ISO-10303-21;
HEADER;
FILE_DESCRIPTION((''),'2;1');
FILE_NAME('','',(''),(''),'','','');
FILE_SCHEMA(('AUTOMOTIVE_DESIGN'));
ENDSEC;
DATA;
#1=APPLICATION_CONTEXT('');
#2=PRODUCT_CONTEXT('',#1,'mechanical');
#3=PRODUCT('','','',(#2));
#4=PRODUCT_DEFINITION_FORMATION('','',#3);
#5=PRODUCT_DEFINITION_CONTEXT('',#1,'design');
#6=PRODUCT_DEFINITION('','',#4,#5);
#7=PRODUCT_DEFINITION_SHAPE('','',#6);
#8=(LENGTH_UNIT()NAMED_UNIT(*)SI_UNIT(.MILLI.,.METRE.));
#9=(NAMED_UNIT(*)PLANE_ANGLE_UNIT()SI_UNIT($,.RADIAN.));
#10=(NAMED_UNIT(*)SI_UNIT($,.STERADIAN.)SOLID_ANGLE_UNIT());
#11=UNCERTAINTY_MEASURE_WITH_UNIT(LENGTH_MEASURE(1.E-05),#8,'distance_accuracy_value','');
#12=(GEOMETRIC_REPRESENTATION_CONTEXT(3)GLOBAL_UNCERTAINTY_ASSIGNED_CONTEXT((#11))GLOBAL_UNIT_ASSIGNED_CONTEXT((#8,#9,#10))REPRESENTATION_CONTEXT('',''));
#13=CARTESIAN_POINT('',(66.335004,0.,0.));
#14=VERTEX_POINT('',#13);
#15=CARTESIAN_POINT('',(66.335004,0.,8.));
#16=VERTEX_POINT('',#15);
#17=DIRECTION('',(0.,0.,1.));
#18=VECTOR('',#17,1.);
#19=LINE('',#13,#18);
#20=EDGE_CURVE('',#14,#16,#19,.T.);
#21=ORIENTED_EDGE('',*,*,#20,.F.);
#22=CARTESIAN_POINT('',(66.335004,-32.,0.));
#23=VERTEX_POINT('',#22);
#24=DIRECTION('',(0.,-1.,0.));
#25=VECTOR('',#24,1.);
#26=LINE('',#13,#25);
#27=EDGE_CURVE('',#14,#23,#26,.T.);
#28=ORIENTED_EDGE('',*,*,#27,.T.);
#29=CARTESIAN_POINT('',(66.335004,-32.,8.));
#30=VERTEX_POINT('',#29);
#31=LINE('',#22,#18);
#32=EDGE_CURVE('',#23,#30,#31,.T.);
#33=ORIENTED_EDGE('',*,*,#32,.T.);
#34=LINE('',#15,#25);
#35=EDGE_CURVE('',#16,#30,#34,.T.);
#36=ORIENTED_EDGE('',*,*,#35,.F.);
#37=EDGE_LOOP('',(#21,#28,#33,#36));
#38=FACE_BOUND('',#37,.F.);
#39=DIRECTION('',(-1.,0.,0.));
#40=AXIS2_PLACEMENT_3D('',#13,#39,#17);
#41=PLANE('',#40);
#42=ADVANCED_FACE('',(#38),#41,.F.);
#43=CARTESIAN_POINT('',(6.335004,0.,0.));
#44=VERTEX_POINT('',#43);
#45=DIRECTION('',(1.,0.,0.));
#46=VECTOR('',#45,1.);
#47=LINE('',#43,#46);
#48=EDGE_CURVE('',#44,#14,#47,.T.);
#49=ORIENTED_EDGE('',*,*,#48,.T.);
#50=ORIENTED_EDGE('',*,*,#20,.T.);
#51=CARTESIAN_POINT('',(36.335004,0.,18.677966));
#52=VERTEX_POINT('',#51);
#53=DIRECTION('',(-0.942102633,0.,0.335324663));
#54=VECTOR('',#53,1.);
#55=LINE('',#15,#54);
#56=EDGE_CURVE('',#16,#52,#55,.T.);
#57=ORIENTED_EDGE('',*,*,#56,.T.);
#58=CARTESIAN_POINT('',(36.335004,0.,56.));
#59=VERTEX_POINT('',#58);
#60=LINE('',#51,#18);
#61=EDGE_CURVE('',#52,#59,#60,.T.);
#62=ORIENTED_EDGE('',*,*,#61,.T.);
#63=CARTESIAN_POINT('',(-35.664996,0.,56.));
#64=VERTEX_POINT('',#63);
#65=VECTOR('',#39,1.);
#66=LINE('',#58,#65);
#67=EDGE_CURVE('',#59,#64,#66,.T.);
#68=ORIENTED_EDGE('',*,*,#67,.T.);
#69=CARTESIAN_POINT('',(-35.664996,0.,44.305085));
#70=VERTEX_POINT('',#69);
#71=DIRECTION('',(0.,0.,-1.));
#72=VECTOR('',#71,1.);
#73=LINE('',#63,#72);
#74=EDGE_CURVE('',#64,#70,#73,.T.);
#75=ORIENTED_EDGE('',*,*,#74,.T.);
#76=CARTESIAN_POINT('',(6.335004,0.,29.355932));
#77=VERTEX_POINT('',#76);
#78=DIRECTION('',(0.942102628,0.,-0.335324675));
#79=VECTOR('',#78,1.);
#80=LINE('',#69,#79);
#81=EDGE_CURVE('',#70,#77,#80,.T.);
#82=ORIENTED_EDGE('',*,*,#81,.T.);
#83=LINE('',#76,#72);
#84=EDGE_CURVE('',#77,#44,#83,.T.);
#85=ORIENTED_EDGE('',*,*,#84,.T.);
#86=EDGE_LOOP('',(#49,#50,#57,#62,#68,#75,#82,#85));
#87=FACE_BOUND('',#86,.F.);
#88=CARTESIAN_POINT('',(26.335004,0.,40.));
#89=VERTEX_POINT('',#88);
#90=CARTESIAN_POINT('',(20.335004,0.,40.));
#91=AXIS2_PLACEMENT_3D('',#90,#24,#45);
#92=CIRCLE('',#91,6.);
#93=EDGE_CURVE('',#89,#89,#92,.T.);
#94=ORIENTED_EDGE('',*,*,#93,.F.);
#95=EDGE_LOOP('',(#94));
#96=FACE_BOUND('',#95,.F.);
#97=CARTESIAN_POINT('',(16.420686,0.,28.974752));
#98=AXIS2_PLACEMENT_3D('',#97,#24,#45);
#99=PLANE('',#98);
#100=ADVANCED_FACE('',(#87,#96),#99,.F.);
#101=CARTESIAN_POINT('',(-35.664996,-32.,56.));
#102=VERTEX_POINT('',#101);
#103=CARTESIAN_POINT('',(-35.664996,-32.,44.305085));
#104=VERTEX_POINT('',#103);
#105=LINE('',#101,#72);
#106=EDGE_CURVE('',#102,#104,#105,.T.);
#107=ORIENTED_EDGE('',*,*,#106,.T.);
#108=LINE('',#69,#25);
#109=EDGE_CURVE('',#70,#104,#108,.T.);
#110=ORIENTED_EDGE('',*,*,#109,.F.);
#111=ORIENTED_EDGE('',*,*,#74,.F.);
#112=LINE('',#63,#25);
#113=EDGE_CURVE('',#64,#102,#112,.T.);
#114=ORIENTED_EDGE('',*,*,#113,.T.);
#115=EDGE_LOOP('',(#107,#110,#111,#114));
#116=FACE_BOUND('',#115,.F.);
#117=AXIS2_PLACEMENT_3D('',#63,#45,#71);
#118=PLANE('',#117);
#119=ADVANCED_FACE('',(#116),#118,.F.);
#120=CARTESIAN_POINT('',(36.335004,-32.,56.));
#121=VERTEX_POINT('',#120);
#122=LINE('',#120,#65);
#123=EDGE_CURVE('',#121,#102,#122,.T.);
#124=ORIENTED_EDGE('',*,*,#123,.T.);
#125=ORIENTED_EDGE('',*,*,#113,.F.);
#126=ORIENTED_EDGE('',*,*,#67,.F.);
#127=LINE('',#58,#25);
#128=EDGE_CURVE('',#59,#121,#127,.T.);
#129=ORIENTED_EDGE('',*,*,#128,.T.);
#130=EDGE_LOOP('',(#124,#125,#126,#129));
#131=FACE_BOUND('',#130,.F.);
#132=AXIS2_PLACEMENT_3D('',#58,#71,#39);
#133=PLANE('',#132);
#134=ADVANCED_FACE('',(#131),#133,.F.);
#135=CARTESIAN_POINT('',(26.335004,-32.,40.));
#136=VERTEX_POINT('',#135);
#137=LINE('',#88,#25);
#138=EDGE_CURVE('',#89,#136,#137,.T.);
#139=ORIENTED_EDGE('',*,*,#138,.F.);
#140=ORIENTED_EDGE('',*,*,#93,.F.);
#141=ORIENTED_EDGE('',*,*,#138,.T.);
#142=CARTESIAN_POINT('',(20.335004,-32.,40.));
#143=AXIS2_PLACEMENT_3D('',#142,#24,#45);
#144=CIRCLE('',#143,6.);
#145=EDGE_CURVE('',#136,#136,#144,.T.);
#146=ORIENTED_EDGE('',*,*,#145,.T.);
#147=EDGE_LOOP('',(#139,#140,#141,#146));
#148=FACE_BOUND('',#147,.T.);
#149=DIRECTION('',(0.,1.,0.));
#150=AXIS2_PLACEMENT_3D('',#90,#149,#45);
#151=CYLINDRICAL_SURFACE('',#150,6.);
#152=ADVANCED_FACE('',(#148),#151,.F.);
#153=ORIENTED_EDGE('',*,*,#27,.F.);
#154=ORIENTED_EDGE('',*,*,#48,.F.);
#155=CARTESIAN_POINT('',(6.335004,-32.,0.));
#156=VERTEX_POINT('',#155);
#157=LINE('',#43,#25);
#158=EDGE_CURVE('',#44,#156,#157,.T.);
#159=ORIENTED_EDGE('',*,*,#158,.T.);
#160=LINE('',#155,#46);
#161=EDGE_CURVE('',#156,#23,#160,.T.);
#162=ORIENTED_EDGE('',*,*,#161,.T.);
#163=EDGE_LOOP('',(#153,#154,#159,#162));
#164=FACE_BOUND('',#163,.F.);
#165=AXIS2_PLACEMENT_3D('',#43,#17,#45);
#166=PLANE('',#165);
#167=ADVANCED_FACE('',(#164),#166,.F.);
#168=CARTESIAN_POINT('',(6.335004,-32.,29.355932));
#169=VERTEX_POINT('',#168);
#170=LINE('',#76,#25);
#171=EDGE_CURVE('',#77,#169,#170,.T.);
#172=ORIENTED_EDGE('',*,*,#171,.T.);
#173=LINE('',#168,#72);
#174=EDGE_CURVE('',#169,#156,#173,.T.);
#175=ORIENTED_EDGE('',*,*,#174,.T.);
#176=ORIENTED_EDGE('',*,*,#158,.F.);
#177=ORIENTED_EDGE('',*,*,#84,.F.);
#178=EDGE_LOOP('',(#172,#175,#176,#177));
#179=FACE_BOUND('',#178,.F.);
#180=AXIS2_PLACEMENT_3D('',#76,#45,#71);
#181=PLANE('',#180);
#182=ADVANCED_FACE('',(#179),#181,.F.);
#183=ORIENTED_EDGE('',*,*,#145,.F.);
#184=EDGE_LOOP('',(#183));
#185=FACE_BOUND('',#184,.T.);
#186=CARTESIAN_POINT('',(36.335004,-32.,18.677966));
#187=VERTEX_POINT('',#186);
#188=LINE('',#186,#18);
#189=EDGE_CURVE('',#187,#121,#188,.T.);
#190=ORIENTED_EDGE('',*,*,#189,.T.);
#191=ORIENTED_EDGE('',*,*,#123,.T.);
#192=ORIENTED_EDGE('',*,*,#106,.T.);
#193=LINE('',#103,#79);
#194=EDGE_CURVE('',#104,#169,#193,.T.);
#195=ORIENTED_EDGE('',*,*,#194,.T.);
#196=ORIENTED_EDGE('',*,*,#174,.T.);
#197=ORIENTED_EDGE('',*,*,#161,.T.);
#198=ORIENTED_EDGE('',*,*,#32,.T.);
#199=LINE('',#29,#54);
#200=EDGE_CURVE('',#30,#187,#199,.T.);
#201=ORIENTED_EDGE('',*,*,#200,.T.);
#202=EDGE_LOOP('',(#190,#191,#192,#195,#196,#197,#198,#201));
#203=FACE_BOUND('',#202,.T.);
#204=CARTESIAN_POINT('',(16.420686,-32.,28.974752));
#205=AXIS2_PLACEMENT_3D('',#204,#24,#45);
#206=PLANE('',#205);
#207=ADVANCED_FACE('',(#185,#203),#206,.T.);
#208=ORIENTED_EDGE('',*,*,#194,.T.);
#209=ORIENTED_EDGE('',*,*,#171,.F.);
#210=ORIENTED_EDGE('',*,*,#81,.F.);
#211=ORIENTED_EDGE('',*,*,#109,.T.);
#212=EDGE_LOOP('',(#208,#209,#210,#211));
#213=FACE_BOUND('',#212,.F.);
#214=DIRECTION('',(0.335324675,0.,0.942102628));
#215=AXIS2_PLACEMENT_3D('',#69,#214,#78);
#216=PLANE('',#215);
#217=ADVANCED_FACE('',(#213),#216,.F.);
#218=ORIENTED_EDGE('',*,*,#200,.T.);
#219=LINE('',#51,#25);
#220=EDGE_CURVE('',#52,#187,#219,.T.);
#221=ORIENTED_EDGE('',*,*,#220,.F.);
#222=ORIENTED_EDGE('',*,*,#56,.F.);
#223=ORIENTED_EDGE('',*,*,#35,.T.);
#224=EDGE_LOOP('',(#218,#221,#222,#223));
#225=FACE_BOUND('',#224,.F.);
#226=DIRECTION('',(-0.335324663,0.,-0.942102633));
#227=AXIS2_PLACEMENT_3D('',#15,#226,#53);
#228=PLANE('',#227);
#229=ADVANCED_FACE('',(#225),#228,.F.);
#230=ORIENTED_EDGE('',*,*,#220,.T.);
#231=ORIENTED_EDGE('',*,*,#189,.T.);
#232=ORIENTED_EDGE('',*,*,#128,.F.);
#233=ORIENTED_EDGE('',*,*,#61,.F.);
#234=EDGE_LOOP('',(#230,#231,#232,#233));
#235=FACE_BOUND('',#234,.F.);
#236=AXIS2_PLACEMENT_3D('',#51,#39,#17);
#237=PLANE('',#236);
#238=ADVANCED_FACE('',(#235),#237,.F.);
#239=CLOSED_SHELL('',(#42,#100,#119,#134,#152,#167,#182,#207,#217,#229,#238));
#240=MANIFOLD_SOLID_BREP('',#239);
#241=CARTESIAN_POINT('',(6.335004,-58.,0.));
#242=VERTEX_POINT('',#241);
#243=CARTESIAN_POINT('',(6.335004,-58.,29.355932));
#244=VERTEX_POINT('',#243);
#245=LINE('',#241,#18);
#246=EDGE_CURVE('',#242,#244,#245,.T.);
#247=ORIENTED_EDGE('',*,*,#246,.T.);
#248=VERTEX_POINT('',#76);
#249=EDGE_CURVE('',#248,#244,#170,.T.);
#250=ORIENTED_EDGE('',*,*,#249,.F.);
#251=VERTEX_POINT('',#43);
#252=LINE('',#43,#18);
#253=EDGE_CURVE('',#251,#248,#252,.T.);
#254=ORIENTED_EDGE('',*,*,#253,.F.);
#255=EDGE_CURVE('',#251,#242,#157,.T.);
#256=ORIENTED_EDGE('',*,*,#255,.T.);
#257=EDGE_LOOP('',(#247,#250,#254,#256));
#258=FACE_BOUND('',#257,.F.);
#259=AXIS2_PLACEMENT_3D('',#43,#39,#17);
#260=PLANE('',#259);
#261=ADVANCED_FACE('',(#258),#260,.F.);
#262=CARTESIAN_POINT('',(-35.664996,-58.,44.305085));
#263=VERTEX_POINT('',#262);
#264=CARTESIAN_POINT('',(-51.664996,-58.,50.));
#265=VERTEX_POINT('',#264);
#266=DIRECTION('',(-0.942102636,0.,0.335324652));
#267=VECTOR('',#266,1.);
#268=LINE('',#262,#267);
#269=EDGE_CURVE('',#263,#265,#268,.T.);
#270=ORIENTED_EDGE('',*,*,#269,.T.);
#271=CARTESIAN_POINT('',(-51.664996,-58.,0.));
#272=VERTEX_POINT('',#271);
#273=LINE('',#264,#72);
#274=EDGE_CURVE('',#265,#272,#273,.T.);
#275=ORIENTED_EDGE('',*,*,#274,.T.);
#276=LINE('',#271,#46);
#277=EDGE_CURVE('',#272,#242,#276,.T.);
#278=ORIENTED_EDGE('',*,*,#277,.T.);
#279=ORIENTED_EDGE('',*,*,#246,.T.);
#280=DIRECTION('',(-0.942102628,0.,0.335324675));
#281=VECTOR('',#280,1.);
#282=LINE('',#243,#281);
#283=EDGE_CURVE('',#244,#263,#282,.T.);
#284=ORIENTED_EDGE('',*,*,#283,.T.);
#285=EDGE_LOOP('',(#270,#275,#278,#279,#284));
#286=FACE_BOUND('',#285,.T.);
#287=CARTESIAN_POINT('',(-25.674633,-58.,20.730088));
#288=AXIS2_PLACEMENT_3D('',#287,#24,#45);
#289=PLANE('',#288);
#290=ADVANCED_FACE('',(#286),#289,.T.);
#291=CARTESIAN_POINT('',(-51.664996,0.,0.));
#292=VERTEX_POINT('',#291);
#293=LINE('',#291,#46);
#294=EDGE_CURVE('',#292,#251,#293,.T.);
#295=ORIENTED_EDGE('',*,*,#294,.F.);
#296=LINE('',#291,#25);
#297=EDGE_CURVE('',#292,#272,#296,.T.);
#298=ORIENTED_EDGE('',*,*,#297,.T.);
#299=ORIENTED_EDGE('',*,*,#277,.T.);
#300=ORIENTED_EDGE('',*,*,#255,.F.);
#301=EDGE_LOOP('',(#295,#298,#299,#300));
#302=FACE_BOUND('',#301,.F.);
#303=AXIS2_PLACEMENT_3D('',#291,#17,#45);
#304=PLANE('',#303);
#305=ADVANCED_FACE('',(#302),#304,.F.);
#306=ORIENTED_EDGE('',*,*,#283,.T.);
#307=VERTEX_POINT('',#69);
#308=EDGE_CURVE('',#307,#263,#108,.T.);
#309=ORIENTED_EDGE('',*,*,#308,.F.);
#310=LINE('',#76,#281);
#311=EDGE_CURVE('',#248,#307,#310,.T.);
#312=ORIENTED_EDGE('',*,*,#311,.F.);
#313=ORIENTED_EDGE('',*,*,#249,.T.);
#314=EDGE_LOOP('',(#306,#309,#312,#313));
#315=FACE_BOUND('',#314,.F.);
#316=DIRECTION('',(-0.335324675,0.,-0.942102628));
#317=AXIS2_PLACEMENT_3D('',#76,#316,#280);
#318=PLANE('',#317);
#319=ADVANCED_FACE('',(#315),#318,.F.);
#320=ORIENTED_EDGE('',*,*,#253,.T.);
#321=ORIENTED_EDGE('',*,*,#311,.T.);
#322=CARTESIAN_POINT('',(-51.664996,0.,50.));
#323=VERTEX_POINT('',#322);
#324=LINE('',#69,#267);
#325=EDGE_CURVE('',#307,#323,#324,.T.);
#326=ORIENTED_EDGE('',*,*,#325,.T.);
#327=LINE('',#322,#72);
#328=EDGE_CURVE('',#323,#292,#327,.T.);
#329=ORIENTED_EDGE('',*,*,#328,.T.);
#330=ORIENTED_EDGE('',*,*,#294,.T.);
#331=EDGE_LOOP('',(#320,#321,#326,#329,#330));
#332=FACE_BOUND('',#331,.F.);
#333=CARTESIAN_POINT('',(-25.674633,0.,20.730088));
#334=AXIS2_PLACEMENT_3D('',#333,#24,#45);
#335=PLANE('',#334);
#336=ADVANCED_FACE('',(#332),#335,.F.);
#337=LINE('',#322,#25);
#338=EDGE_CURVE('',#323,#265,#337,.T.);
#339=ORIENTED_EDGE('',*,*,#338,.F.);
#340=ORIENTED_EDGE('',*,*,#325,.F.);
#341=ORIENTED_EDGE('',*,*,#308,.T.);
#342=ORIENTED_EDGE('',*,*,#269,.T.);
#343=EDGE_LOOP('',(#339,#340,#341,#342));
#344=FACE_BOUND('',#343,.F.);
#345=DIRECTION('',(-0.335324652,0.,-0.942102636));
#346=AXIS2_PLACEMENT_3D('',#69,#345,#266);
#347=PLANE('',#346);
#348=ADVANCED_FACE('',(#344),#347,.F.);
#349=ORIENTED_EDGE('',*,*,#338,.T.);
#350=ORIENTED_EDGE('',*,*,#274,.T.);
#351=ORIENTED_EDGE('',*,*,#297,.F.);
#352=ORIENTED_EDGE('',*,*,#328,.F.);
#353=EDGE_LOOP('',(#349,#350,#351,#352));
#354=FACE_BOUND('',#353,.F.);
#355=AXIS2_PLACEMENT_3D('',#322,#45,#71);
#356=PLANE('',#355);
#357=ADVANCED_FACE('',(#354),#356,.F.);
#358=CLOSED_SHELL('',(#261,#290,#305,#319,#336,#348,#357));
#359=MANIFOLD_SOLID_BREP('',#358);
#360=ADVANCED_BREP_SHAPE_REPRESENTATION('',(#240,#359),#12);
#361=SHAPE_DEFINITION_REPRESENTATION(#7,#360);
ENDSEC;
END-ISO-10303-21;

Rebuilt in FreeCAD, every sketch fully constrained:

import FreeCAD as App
import Part
import Sketcher
Q = App.Units.Quantity

doc = App.newDocument("Part")
body = doc.addObject("PartDesign::Body", "Body")

# Sketch on XZ plane
sketch1 = doc.addObject("Sketcher::SketchObject", "Sketch")
body.addObject(sketch1)
sketch1.AttachmentSupport = (doc.XZ_Plane, [""])
sketch1.MapMode = "FlatFace"
sketch1.addGeometry(Part.LineSegment(App.Vector(-52, 0, 0), App.Vector(6, 0, 0)), False)
sketch1.addGeometry(Part.LineSegment(App.Vector(6, 0, 0), App.Vector(6, 29, 0)), False)
sketch1.addGeometry(Part.LineSegment(App.Vector(6, 29, 0), App.Vector(-36, 44, 0)), False)
sketch1.addGeometry(Part.LineSegment(App.Vector(-36, 44, 0), App.Vector(-52, 50, 0)), False)
sketch1.addGeometry(Part.LineSegment(App.Vector(-52, 50, 0), App.Vector(-52, 0, 0)), False)
sketch1.addConstraint(Sketcher.Constraint("Coincident", 0, 2, 1, 1))
sketch1.addConstraint(Sketcher.Constraint("Coincident", 1, 2, 2, 1))
sketch1.addConstraint(Sketcher.Constraint("Coincident", 2, 2, 3, 1))
sketch1.addConstraint(Sketcher.Constraint("Coincident", 3, 2, 4, 1))
sketch1.addConstraint(Sketcher.Constraint("Coincident", 4, 2, 0, 1))
sketch1.addConstraint(Sketcher.Constraint("Horizontal", 0))
sketch1.addConstraint(Sketcher.Constraint("Vertical", 1))
sketch1.addConstraint(Sketcher.Constraint("Vertical", 4))
sketch1.addConstraint(Sketcher.Constraint("PointOnObject", 0, 2, -1))
sketch1.addConstraint(Sketcher.Constraint("Parallel", 2, 3))
sketch1.addConstraint(Sketcher.Constraint("DistanceX", 0, 1, 0, 2, Q("58 mm")))
sketch1.addConstraint(Sketcher.Constraint("DistanceY", 4, 2, 4, 1, Q("50 mm")))
sketch1.addConstraint(Sketcher.Constraint("DistanceX", 2, 2, 1, 2, Q("42 mm")))
sketch1.addConstraint(Sketcher.Constraint("DistanceY", 1, 1, 1, 2, Q("29.355932 mm")))
sketch1.addConstraint(Sketcher.Constraint("DistanceX", -1, 1, 0, 2, Q("6.335004 mm")))
pad1 = doc.addObject("PartDesign::Pad", "Pad")
body.addObject(pad1)
pad1.Profile = sketch1
pad1.Length = 58
body2 = doc.addObject("PartDesign::Body", "Body001")

# Sketch on XZ plane
sketch2 = doc.addObject("Sketcher::SketchObject", "Sketch001")
body2.addObject(sketch2)
sketch2.AttachmentSupport = (doc.getObject("XZ_Plane001"), [""])
sketch2.MapMode = "FlatFace"
sketch2.addGeometry(Part.LineSegment(App.Vector(6, 0, 0), App.Vector(66, 0, 0)), False)
sketch2.addGeometry(Part.LineSegment(App.Vector(66, 0, 0), App.Vector(66, 8, 0)), False)
sketch2.addGeometry(Part.LineSegment(App.Vector(66, 8, 0), App.Vector(36, 19, 0)), False)
sketch2.addGeometry(Part.LineSegment(App.Vector(36, 19, 0), App.Vector(36, 56, 0)), False)
sketch2.addGeometry(Part.LineSegment(App.Vector(36, 56, 0), App.Vector(-36, 56, 0)), False)
sketch2.addGeometry(Part.LineSegment(App.Vector(-36, 56, 0), App.Vector(-36, 44, 0)), False)
sketch2.addGeometry(Part.LineSegment(App.Vector(-36, 44, 0), App.Vector(6, 29, 0)), False)
sketch2.addGeometry(Part.LineSegment(App.Vector(6, 29, 0), App.Vector(6, 0, 0)), False)
sketch2.addGeometry(Part.Circle(App.Vector(20, 40, 0), App.Vector(0, 0, 1), 6), False)
sketch2.addConstraint(Sketcher.Constraint("Coincident", 0, 2, 1, 1))
sketch2.addConstraint(Sketcher.Constraint("Coincident", 1, 2, 2, 1))
sketch2.addConstraint(Sketcher.Constraint("Coincident", 2, 2, 3, 1))
sketch2.addConstraint(Sketcher.Constraint("Coincident", 3, 2, 4, 1))
sketch2.addConstraint(Sketcher.Constraint("Coincident", 4, 2, 5, 1))
sketch2.addConstraint(Sketcher.Constraint("Coincident", 5, 2, 6, 1))
sketch2.addConstraint(Sketcher.Constraint("Coincident", 6, 2, 7, 1))
sketch2.addConstraint(Sketcher.Constraint("Coincident", 7, 2, 0, 1))
sketch2.addConstraint(Sketcher.Constraint("Horizontal", 0))
sketch2.addConstraint(Sketcher.Constraint("Vertical", 1))
sketch2.addConstraint(Sketcher.Constraint("Vertical", 3))
sketch2.addConstraint(Sketcher.Constraint("Horizontal", 4))
sketch2.addConstraint(Sketcher.Constraint("Vertical", 5))
sketch2.addConstraint(Sketcher.Constraint("Vertical", 7))
sketch2.addConstraint(Sketcher.Constraint("PointOnObject", 0, 2, -1))
sketch2.addConstraint(Sketcher.Constraint("Parallel", 2, 6))
sketch2.addConstraint(Sketcher.Constraint("Diameter", 8, Q("12 mm")))
sketch2.addConstraint(Sketcher.Constraint("DistanceX", 0, 1, 0, 2, Q("60 mm")))
sketch2.addConstraint(Sketcher.Constraint("DistanceX", 4, 2, 4, 1, Q("72 mm")))
sketch2.addConstraint(Sketcher.Constraint("DistanceY", 1, 1, 1, 2, Q("8 mm")))
sketch2.addConstraint(Sketcher.Constraint("DistanceY", -1, 1, 8, 3, Q("40 mm")))
sketch2.addConstraint(Sketcher.Constraint("DistanceY", -1, 1, 3, 2, Q("56 mm")))
sketch2.addConstraint(Sketcher.Constraint("DistanceX", 8, 3, 0, 2, Q("46 mm")))
sketch2.addConstraint(Sketcher.Constraint("DistanceX", 8, 3, 2, 2, Q("16 mm")))
sketch2.addConstraint(Sketcher.Constraint("DistanceY", 7, 2, 7, 1, Q("29.355932 mm")))
sketch2.addConstraint(Sketcher.Constraint("Distance", 6, Q("44.58113 mm")))
sketch2.addConstraint(Sketcher.Constraint("DistanceX", -1, 1, 8, 3, Q("20.335004 mm")))
pad2 = doc.addObject("PartDesign::Pad", "Pad001")
body2.addObject(pad2)
pad2.Profile = sketch2
pad2.Length = 32

doc.recompute()
